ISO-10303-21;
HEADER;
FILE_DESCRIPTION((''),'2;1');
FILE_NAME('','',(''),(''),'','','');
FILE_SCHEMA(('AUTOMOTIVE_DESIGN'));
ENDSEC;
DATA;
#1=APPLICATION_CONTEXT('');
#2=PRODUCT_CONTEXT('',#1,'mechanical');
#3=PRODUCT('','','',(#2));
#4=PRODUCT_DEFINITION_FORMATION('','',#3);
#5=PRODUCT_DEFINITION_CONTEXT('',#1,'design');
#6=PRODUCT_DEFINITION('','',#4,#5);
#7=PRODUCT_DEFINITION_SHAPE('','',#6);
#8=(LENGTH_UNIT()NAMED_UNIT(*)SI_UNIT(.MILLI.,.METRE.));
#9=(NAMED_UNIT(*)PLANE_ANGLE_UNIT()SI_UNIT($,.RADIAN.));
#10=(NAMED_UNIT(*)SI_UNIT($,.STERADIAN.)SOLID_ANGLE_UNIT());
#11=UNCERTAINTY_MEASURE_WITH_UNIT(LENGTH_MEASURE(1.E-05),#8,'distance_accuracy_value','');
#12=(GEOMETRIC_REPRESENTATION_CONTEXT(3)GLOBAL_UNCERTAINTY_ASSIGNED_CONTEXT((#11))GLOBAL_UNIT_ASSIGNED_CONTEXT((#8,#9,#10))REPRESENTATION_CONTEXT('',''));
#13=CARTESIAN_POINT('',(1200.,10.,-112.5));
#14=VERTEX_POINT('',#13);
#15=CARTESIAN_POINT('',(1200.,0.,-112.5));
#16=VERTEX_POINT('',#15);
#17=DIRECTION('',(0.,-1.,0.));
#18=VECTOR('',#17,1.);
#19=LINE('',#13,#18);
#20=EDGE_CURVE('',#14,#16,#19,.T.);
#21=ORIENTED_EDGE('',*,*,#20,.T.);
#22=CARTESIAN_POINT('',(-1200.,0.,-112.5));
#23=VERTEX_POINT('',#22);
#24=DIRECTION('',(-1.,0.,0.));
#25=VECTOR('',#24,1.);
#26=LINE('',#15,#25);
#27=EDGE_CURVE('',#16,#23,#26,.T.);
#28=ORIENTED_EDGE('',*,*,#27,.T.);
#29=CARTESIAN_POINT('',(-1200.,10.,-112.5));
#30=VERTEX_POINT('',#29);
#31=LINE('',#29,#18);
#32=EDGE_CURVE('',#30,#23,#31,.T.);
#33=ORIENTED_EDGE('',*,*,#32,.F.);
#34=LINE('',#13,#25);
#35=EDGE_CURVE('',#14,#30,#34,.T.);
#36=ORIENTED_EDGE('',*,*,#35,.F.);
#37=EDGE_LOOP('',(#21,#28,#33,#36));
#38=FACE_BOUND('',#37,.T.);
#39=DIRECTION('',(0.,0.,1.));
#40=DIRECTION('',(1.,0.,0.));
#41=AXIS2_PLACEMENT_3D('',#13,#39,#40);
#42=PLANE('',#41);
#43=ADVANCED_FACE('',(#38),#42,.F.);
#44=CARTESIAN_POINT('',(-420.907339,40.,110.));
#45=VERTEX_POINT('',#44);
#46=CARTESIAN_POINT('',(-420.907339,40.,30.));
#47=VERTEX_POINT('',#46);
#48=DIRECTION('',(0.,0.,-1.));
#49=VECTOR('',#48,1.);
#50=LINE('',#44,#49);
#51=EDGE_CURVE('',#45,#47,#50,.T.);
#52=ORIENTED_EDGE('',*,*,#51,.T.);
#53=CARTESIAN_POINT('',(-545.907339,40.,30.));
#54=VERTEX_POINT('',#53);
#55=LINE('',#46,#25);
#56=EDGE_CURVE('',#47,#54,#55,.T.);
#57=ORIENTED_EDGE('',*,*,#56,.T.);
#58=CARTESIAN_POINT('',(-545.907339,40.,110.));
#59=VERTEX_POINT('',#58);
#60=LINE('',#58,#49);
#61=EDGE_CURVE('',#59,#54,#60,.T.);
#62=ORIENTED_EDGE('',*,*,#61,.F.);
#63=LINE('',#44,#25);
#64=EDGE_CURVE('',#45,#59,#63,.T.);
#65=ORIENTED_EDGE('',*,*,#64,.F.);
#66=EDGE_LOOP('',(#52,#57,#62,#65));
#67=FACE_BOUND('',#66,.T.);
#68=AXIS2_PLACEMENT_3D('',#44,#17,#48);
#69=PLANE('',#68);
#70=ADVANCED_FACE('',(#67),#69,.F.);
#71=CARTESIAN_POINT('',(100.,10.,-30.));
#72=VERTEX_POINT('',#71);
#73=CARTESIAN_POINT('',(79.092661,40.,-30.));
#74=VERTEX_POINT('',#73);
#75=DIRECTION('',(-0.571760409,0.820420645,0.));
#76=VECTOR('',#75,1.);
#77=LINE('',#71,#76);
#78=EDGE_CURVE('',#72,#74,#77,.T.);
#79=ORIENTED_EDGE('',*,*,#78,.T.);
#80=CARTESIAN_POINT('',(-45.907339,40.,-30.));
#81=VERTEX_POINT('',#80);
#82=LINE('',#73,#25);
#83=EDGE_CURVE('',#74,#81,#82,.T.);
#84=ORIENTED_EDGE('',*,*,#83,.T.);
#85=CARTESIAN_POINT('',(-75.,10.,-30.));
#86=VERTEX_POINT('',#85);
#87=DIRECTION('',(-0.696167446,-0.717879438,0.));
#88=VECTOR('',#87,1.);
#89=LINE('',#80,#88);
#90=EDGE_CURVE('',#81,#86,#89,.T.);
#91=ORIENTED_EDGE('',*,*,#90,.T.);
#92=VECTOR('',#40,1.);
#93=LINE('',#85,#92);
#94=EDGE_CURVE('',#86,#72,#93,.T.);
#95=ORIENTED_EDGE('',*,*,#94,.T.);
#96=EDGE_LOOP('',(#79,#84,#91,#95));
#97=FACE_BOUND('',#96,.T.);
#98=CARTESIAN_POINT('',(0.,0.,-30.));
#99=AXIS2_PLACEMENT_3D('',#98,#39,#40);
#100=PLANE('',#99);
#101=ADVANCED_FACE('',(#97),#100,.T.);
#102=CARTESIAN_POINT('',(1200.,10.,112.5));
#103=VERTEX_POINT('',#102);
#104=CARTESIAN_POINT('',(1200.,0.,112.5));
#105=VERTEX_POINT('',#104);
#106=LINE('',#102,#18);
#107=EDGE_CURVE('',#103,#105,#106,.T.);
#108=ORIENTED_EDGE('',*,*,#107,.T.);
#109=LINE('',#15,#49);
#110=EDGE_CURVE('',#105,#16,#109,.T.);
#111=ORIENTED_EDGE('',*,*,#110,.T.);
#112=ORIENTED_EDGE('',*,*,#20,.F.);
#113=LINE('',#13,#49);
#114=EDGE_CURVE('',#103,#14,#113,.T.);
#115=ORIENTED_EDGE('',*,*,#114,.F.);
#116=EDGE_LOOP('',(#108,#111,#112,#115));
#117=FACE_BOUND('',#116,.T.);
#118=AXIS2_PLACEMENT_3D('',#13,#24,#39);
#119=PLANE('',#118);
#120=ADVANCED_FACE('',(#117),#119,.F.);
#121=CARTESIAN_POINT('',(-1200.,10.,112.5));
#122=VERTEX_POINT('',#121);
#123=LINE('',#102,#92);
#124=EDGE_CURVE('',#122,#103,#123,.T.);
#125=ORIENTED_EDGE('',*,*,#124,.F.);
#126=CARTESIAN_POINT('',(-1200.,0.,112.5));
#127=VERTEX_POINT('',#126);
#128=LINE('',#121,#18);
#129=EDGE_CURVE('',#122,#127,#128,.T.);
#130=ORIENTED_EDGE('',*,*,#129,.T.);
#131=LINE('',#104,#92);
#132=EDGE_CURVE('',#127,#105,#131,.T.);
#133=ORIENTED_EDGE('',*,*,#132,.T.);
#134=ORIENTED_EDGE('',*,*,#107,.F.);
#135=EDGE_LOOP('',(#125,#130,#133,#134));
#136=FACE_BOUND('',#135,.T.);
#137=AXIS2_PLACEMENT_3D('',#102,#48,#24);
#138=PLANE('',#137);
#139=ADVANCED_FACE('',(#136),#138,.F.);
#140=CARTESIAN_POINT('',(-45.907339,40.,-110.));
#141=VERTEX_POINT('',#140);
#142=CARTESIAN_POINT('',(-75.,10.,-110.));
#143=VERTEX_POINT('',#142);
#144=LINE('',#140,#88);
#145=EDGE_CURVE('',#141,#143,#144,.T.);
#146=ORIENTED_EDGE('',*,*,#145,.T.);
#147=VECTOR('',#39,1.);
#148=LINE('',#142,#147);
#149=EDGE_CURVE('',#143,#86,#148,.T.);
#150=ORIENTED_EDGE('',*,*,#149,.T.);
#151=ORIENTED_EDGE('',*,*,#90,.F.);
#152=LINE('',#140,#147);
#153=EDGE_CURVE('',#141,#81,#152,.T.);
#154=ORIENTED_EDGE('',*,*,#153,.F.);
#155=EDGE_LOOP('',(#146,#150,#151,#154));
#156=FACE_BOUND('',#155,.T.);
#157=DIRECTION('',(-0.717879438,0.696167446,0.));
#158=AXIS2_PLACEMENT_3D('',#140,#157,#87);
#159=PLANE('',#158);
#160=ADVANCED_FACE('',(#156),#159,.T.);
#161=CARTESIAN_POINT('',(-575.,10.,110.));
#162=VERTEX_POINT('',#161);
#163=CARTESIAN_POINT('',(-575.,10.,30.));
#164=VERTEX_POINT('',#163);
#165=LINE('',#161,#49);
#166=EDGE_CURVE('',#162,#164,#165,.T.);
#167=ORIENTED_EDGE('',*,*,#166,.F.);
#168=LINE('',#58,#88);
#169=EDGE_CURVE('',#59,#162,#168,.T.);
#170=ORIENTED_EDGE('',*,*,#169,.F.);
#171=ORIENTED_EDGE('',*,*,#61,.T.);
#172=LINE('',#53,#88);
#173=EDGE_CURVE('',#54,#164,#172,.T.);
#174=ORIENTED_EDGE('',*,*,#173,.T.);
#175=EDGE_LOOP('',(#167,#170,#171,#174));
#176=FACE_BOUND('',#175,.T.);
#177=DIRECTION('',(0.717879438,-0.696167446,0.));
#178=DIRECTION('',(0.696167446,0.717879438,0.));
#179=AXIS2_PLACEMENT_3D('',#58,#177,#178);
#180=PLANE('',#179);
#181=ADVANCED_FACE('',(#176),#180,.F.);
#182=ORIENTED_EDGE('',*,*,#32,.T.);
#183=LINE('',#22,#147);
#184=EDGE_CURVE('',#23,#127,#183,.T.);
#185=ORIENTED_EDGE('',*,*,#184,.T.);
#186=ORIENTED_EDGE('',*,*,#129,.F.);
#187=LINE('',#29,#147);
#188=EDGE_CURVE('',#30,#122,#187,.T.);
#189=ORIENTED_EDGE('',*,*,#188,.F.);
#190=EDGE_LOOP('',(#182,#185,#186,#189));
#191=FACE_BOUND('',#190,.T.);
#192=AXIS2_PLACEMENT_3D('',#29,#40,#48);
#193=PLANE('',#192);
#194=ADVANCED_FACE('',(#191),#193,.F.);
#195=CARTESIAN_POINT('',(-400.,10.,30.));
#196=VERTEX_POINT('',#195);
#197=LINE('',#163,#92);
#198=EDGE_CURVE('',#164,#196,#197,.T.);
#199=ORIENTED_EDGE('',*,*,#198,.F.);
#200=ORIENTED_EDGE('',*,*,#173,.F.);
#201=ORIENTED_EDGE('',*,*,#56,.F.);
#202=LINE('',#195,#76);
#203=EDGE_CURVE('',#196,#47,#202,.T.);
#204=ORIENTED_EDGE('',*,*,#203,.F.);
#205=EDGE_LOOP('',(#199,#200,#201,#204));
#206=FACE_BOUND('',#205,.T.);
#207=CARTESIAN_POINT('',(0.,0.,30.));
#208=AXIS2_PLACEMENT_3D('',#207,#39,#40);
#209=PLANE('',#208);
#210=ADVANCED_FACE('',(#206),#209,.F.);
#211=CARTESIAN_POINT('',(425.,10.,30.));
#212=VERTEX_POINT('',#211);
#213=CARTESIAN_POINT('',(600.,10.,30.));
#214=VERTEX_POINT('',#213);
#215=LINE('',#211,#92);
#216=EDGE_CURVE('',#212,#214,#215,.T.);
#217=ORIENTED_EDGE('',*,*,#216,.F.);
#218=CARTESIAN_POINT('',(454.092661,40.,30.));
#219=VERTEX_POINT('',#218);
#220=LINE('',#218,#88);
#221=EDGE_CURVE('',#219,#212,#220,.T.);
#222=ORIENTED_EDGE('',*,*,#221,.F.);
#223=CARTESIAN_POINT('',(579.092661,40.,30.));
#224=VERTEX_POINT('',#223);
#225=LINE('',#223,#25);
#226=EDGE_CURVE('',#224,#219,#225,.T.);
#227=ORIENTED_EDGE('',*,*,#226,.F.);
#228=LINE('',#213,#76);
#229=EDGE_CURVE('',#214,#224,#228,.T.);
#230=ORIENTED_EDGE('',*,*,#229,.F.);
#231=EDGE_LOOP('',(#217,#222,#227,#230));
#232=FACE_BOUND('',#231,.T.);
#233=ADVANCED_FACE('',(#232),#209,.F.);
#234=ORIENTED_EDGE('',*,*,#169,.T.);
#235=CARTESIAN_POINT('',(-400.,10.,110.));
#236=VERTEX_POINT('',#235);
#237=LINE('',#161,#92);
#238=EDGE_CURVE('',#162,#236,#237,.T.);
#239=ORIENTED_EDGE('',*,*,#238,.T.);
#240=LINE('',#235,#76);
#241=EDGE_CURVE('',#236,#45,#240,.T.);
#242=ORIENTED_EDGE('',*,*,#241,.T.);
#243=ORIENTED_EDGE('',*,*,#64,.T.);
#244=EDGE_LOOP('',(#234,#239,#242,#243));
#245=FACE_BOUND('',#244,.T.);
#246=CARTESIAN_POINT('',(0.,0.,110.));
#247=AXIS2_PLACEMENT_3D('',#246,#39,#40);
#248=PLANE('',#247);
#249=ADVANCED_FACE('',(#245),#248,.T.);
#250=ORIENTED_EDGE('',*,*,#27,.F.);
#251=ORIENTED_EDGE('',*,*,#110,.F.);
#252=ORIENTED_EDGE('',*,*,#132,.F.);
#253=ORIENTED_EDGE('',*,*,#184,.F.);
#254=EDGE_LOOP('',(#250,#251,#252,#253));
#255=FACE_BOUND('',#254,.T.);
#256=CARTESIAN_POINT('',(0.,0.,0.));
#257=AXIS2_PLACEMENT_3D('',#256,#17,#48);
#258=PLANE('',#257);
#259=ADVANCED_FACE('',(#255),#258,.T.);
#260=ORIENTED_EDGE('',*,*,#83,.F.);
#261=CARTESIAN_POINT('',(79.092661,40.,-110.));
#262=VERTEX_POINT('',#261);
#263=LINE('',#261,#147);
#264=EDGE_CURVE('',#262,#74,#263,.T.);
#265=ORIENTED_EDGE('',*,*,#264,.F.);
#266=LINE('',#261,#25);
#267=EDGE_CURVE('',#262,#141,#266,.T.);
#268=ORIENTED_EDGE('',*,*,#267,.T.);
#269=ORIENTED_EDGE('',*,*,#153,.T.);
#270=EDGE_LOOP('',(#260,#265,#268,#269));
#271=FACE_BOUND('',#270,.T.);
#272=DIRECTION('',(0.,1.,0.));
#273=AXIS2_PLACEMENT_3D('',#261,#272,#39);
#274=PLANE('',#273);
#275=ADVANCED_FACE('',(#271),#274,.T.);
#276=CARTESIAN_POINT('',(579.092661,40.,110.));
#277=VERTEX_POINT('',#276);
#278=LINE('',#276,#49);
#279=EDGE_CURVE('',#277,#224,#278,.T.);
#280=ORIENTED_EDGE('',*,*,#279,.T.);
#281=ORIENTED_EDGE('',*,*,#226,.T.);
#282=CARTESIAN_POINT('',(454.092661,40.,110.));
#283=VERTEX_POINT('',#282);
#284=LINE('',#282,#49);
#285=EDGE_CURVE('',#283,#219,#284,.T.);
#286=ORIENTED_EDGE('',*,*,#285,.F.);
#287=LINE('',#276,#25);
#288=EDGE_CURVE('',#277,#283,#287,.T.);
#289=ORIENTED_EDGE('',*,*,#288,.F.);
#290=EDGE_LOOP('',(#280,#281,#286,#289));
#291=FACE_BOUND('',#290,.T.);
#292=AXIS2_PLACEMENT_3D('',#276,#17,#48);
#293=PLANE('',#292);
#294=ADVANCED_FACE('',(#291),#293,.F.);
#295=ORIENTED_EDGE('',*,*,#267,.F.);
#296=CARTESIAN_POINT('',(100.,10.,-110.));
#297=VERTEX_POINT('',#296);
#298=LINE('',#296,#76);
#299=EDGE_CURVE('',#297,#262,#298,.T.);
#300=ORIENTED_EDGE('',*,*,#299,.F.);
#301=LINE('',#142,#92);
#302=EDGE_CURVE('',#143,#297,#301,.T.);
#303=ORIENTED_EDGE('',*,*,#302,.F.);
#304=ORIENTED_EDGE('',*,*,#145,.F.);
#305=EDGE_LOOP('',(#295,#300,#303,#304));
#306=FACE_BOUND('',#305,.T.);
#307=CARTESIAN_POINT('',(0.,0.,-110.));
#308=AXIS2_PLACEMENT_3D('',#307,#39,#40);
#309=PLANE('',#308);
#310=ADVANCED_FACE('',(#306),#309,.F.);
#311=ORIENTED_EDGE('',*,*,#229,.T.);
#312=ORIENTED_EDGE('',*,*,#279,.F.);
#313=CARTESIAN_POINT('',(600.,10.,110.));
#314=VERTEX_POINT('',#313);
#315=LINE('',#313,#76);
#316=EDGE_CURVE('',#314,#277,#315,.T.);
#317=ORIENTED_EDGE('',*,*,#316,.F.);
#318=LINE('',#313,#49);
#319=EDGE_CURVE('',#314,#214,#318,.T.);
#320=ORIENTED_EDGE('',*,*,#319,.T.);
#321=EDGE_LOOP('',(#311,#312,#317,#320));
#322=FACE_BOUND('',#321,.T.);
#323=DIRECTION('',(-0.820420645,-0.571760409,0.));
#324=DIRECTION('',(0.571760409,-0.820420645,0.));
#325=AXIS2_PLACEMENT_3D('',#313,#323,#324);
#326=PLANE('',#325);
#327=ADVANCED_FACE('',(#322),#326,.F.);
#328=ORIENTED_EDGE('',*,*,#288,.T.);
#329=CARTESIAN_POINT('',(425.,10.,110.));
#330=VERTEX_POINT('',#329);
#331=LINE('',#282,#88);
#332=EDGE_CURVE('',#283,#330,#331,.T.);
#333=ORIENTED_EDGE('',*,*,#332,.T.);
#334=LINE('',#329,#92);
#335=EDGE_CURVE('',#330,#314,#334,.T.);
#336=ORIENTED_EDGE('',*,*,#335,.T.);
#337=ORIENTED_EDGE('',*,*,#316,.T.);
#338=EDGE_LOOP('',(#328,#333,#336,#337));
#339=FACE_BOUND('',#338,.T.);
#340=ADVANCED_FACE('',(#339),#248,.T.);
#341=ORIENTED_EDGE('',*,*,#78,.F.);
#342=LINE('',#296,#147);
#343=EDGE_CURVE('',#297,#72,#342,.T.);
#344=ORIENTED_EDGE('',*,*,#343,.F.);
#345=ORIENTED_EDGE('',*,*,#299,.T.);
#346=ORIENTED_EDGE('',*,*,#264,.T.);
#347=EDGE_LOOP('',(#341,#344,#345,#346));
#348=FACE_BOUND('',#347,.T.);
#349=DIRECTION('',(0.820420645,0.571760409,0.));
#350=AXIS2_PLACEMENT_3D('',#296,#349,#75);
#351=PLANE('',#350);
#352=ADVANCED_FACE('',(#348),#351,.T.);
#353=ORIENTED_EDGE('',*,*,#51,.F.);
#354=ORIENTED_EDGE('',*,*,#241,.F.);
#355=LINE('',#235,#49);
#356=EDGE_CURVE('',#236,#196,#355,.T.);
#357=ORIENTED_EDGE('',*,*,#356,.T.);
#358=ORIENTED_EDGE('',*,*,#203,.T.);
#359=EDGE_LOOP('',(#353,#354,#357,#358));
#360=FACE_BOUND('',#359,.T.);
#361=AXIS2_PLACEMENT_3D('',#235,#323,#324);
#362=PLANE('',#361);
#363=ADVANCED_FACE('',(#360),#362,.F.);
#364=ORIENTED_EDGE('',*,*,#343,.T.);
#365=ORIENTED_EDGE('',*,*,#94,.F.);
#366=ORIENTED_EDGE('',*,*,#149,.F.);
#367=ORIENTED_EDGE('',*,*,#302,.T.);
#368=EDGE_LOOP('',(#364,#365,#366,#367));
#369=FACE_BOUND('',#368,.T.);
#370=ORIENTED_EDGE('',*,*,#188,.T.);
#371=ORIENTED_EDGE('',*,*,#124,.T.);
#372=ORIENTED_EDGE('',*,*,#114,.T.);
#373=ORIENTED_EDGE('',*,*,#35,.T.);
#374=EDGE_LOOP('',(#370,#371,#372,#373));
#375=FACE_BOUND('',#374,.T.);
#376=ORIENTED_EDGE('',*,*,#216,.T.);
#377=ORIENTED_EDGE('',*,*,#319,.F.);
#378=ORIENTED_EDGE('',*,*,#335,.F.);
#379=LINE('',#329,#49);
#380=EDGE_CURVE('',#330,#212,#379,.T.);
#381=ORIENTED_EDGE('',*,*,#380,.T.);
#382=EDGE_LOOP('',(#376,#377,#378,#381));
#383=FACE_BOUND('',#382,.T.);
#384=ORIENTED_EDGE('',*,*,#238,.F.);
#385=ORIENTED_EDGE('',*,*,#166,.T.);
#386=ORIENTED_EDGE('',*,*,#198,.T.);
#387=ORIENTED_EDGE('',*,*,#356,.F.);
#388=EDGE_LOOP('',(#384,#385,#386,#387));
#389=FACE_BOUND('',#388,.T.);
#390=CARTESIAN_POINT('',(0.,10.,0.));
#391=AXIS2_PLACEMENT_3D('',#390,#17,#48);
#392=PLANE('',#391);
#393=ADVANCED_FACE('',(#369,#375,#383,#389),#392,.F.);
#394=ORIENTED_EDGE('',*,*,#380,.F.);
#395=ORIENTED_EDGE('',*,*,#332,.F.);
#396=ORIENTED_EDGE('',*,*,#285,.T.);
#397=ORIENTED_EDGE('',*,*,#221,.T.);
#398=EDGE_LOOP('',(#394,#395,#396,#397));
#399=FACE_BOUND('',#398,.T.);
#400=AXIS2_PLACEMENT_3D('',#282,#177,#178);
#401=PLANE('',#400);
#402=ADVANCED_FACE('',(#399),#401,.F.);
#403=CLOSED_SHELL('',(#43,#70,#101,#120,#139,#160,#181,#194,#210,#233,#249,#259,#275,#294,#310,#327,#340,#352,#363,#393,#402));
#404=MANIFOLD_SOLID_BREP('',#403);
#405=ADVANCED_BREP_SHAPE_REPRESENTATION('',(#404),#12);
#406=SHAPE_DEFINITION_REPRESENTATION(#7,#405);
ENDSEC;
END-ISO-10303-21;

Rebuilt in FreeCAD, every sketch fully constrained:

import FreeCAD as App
import Part
import Sketcher

V = App.Vector


def add_polygon(sketch, points):
    """Adds a closed chain of lines whose ends are joined by coincident constraints."""
    first, n = sketch.GeometryCount, len(points)
    for a, b in zip(points, points[1:] + points[:1]):
        sketch.addGeometry(Part.LineSegment(App.Vector(*a, 0), App.Vector(*b, 0)), False)
    for i in range(n):
        sketch.addConstraint(Sketcher.Constraint("Coincident", first + i, 2, first + (i + 1) % n, 1))

doc = App.newDocument("Part")
body = doc.addObject("PartDesign::Body", "Body")

sketch1 = body.newObject("Sketcher::SketchObject", "Sketch")
sketch1.AttachmentSupport = (doc.getObject("XZ_Plane"), [""])
sketch1.MapMode = "FlatFace"
add_polygon(sketch1, [(-1200, -112), (-1200, 112), (1200, 112), (1200, -112)])
sketch1.addConstraint([
    Sketcher.Constraint("Vertical", 0),
    Sketcher.Constraint("Horizontal", 1),
    Sketcher.Constraint("Vertical", 2),
    Sketcher.Constraint("Horizontal", 3),
    Sketcher.Constraint("Symmetric", 0, 2, 2, 2, -1, 1),
    Sketcher.Constraint("DistanceX", 1, 1, 1, 2, 2400.0),
    Sketcher.Constraint("DistanceY", 0, 1, 0, 2, 225.0),
])
pad1 = body.newObject("PartDesign::Pad", "Pad")
pad1.Profile = sketch1
pad1.Length = 10
pad1.Reversed = True

sketch2 = body.newObject("Sketcher::SketchObject", "Sketch001")
sketch2.AttachmentSupport = (doc.getObject("XY_Plane"), [""])
sketch2.MapMode = "FlatFace"
sketch2.AttachmentOffset = App.Placement(V(0, 0, 30), App.Rotation())
add_polygon(sketch2, [(600, 10), (579, 40), (454, 40), (425, 10)])
add_polygon(sketch2, [(-421, 40), (-546, 40), (-575, 10), (-400, 10)])
sketch2.addConstraint([
    Sketcher.Constraint("Horizontal", 1),
    Sketcher.Constraint("Horizontal", 3),
    Sketcher.Constraint("Horizontal", 4),
    Sketcher.Constraint("Horizontal", 6),
    Sketcher.Constraint("Parallel", 2, 5),
    Sketcher.Constraint("Parallel", 0, 7),
    Sketcher.Constraint("Horizontal", 1, 2, 4, 2),
    Sketcher.Constraint("Horizontal", 3, 2, 5, 2),
    Sketcher.Constraint("Equal", 1, 4),
    Sketcher.Constraint("DistanceX", 1, 2, 1, 1, 125.0),
    Sketcher.Constraint("DistanceX", 3, 1, 3, 2, 175.0),
    Sketcher.Constraint("DistanceY", -1, 1, 0, 2, 40.0),
    Sketcher.Constraint("DistanceX", -1, 1, 2, 2, 425.0),
    Sketcher.Constraint("DistanceY", -1, 1, 2, 2, 10.0),
    Sketcher.Constraint("DistanceX", 5, 2, -1, 1, 575.0),
    Sketcher.Constraint("DistanceX", -1, 1, 0, 2, 579.092661),
])
pad2 = body.newObject("PartDesign::Pad", "Pad001")
pad2.Profile = sketch2
pad2.Length = 80

sketch3 = body.newObject("Sketcher::SketchObject", "Sketch002")
sketch3.AttachmentSupport = (doc.getObject("XY_Plane"), [""])
sketch3.MapMode = "FlatFace"
sketch3.AttachmentOffset = App.Placement(V(0, 0, -30), App.Rotation())
add_polygon(sketch3, [(100, 10), (79, 40), (-46, 40), (-75, 10)])
sketch3.addConstraint([
    Sketcher.Constraint("Horizontal", 1),
    Sketcher.Constraint("Horizontal", 3),
    Sketcher.Constraint("DistanceX", 1, 2, 1, 1, 125.0),
    Sketcher.Constraint("DistanceX", 3, 1, 3, 2, 175.0),
    Sketcher.Constraint("DistanceY", -1, 1, 0, 2, 40.0),
    Sketcher.Constraint("DistanceX", 2, 2, -1, 1, 75.0),
    Sketcher.Constraint("DistanceY", -1, 1, 2, 2, 10.0),
    Sketcher.Constraint("DistanceX", -1, 1, 0, 2, 79.092661),
])
pad3 = body.newObject("PartDesign::Pad", "Pad002")
pad3.Profile = sketch3
pad3.Length = 80
pad3.Reversed = True

doc.recompute()
